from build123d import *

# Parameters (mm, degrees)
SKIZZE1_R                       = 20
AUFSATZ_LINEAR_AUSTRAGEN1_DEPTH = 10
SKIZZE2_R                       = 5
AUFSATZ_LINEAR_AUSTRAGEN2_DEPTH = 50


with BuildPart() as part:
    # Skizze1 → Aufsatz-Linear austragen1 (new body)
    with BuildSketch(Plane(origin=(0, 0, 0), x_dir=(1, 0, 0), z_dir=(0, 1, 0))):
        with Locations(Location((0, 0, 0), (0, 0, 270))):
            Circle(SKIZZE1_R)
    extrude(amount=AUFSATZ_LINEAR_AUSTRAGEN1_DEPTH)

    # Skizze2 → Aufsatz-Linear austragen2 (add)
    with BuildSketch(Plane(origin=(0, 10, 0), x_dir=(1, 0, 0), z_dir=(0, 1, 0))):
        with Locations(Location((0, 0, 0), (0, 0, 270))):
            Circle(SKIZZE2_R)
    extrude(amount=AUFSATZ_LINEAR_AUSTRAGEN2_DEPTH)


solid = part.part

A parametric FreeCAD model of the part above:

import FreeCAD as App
import Part
import Sketcher
Q = App.Units.Quantity

doc = App.newDocument("Part")
body = doc.addObject("PartDesign::Body", "Body")

# Sketch on XZ plane
sketch1 = body.newObject("Sketcher::SketchObject", "Sketch")
sketch1.AttachmentSupport = (doc.getObject("XZ_Plane"), [""])
sketch1.MapMode = "FlatFace"
sketch1.addGeometry(Part.Circle(App.Vector(0, 0, 0), App.Vector(0, 0, 1), 20), False)
sketch1.addConstraint([
    Sketcher.Constraint("Coincident", 0, 3, -1, 1),
    Sketcher.Constraint("Diameter", 0, Q("40 mm")),
])
pad1 = body.newObject("PartDesign::Pad", "Pad")
pad1.Profile = sketch1
pad1.Length = 10
pad1.Reversed = True

# Sketch on XZ plane
sketch2 = body.newObject("Sketcher::SketchObject", "Sketch001")
sketch2.AttachmentSupport = (doc.getObject("XZ_Plane"), [""])
sketch2.MapMode = "FlatFace"
sketch2.AttachmentOffset = App.Placement(App.Vector(0, 0, -10), App.Rotation())
sketch2.addGeometry(Part.Circle(App.Vector(0, 0, 0), App.Vector(0, 0, 1), 5), False)
sketch2.addConstraint([
    Sketcher.Constraint("Coincident", 0, 3, -1, 1),
    Sketcher.Constraint("Diameter", 0, Q("10 mm")),
])
pad2 = body.newObject("PartDesign::Pad", "Pad001")
pad2.Profile = sketch2
pad2.Length = 50
pad2.Reversed = True

doc.recompute()
